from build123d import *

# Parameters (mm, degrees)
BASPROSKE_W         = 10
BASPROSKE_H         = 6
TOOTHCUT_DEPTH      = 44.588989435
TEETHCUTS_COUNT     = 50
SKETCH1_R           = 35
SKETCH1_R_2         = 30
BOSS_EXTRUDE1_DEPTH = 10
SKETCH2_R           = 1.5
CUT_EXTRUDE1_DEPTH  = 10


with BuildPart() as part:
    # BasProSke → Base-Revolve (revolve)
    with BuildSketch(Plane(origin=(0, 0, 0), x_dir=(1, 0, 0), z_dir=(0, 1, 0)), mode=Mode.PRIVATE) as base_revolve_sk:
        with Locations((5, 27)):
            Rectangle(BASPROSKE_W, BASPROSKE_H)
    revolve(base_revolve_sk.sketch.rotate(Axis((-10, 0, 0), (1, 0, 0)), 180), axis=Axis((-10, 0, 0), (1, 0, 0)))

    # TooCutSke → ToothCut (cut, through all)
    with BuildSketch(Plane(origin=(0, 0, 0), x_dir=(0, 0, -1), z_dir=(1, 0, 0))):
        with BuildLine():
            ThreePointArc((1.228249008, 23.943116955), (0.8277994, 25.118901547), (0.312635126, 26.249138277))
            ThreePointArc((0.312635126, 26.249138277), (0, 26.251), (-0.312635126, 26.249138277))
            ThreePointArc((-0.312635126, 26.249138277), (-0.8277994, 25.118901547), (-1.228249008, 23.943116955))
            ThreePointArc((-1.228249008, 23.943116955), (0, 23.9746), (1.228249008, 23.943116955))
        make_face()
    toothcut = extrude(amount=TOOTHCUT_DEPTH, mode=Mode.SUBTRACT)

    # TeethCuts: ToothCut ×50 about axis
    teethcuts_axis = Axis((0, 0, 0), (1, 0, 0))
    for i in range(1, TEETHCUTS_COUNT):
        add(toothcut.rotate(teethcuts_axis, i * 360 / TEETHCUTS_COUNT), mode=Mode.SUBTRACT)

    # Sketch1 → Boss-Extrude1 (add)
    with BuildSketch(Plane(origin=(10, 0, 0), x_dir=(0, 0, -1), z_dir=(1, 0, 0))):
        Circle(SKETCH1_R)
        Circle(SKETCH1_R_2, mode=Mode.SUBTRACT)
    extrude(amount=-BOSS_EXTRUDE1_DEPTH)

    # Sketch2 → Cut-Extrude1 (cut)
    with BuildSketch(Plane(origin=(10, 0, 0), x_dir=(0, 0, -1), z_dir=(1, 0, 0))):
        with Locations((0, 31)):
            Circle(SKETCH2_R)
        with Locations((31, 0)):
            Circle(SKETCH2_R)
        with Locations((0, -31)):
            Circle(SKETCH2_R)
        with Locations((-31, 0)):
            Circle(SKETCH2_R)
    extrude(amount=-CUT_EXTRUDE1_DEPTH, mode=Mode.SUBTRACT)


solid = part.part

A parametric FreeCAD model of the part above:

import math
import FreeCAD as App
import Part
import Sketcher
from FreeCAD import Vector
Q = App.Units.Quantity


def add_polygon(sketch, points):
    """Adds a closed chain of lines whose ends are joined by coincident constraints."""
    first, n = sketch.GeometryCount, len(points)
    for a, b in zip(points, points[1:] + points[:1]):
        sketch.addGeometry(Part.LineSegment(App.Vector(*a, 0), App.Vector(*b, 0)), False)
    for i in range(n):
        sketch.addConstraint(Sketcher.Constraint("Coincident", first + i, 2, first + (i + 1) % n, 1))

doc = App.newDocument("Part")
body = doc.addObject("PartDesign::Body", "Body")

sketch1 = body.newObject("Sketcher::SketchObject", "Sketch")
sketch1.AttachmentSupport = (doc.getObject("XZ_Plane"), [""])
sketch1.MapMode = "FlatFace"
add_polygon(sketch1, [(0, -30), (0, -24), (10, -24), (10, -30)])
sketch1.addConstraint([
    Sketcher.Constraint("Vertical", 0),
    Sketcher.Constraint("Horizontal", 1),
    Sketcher.Constraint("Vertical", 2),
    Sketcher.Constraint("Horizontal", 3),
    Sketcher.Constraint("PointOnObject", 0, 2, -2),
    Sketcher.Constraint("DistanceX", 1, 1, 1, 2, Q("10 mm")),
    Sketcher.Constraint("DistanceY", 0, 1, 0, 2, Q("6 mm")),
    Sketcher.Constraint("DistanceY", 0, 2, -1, 1, Q("24 mm")),
])
revolution = body.newObject("PartDesign::Revolution", "Revolution")
revolution.Profile = sketch1
revolution.ReferenceAxis = (sketch1, ["H_Axis"])
revolution.Angle = 360

sketch2 = body.newObject("Sketcher::SketchObject", "Sketch001")
sketch2.AttachmentSupport = (doc.getObject("YZ_Plane"), [""])
sketch2.MapMode = "FlatFace"
sketch2.addGeometry([
    Part.ArcOfCircle(Part.Circle(Vector(20.506043, 10.789926, 0), Vector(0, 0, 1), 12.5), math.radians(-74.040017), math.radians(-62.64853)),
    Part.ArcOfCircle(Part.Circle(Vector(-0.000002, 0, 0), Vector(0, 0, 1), 26.251002), math.radians(-0.682378), math.radians(0.682378)),
    Part.ArcOfCircle(Part.Circle(Vector(20.506043, -10.789926, 0), Vector(0, 0, 1), 12.5), math.radians(62.64853), math.radians(74.040017)),
    Part.ArcOfCircle(Part.Circle(Vector(0, 0, 0), Vector(0, 0, 1), 23.9746), math.radians(-2.936621), math.radians(2.936621)),
], False)
sketch2.addConstraint([
    Sketcher.Constraint("Coincident", 0, 2, 1, 1),
    Sketcher.Constraint("Coincident", 1, 2, 2, 1),
    Sketcher.Constraint("Coincident", 2, 2, 3, 2),
    Sketcher.Constraint("Coincident", 3, 1, 0, 1),
    Sketcher.Constraint("Coincident", 1, 3, -1, 1),
    Sketcher.Constraint("Coincident", 3, 3, -1, 1),
    Sketcher.Constraint("Equal", 0, 2),
    Sketcher.Constraint("Symmetric", 0, 3, 2, 3, -1),
    Sketcher.Constraint("Radius", 0, Q("12.5 mm")),
    Sketcher.Constraint("Radius", 1, Q("26.251002 mm")),
    Sketcher.Constraint("Radius", 3, Q("23.9746 mm")),
    Sketcher.Constraint("DistanceY", 3, 1, 2, 2, Q("2.456498 mm")),
    Sketcher.Constraint("DistanceY", 2, 3, 0, 3, Q("21.579851 mm")),
])
pocket1 = body.newObject("PartDesign::Pocket", "Pocket")
pocket1.Profile = sketch2
pocket1.Type = "ThroughAll"
pocket1.Reversed = True
doc.recompute()

polarpattern = body.newObject("PartDesign::PolarPattern", "PolarPattern")
polarpattern.Originals = [pocket1]
polarpattern.Axis = (doc.getObject("X_Axis"), [""])
polarpattern.Angle = 360
polarpattern.Occurrences = 50
body.Tip = polarpattern

sketch3 = body.newObject("Sketcher::SketchObject", "Sketch002")
sketch3.AttachmentSupport = (doc.getObject("YZ_Plane"), [""])
sketch3.MapMode = "FlatFace"
sketch3.AttachmentOffset = App.Placement(Vector(0, 0, 10), App.Rotation())
sketch3.addGeometry([
    Part.Circle(Vector(0, 0, 0), Vector(0, 0, 1), 35),
    Part.Circle(Vector(0, 0, 0), Vector(0, 0, 1), 30),
], False)
sketch3.addConstraint([
    Sketcher.Constraint("Coincident", 0, 3, -1, 1),
    Sketcher.Constraint("Coincident", 1, 3, -1, 1),
    Sketcher.Constraint("Diameter", 0, Q("70 mm")),
    Sketcher.Constraint("Diameter", 1, Q("60 mm")),
])
pad1 = body.newObject("PartDesign::Pad", "Pad")
pad1.Profile = sketch3
pad1.Length = 10
pad1.Reversed = True

sketch4 = body.newObject("Sketcher::SketchObject", "Sketch003")
sketch4.AttachmentSupport = (doc.getObject("YZ_Plane"), [""])
sketch4.MapMode = "FlatFace"
sketch4.AttachmentOffset = App.Placement(Vector(0, 0, 10), App.Rotation())
sketch4.addGeometry([
    Part.Circle(Vector(31, 0, 0), Vector(0, 0, 1), 1.5),
    Part.Circle(Vector(0, -31, 0), Vector(0, 0, 1), 1.5),
    Part.Circle(Vector(-31, 0, 0), Vector(0, 0, 1), 1.5),
    Part.Circle(Vector(0, 31, 0), Vector(0, 0, 1), 1.5),
], False)
sketch4.addConstraint([
    Sketcher.Constraint("Equal", 0, 1),
    Sketcher.Constraint("Equal", 1, 2),
    Sketcher.Constraint("Equal", 2, 3),
    Sketcher.Constraint("Symmetric", 0, 3, 2, 3, -1, 1),
    Sketcher.Constraint("Symmetric", 1, 3, 3, 3, -1, 1),
    Sketcher.Constraint("PointOnObject", 0, 3, -1),
    Sketcher.Constraint("PointOnObject", 1, 3, -2),
    Sketcher.Constraint("Diameter", 0, Q("3 mm")),
    Sketcher.Constraint("DistanceX", -1, 1, 0, 3, Q("31 mm")),
    Sketcher.Constraint("DistanceY", 1, 3, -1, 1, Q("31 mm")),
])
pocket2 = body.newObject("PartDesign::Pocket", "Pocket001")
pocket2.Profile = sketch4
pocket2.Length = 10

doc.recompute()
